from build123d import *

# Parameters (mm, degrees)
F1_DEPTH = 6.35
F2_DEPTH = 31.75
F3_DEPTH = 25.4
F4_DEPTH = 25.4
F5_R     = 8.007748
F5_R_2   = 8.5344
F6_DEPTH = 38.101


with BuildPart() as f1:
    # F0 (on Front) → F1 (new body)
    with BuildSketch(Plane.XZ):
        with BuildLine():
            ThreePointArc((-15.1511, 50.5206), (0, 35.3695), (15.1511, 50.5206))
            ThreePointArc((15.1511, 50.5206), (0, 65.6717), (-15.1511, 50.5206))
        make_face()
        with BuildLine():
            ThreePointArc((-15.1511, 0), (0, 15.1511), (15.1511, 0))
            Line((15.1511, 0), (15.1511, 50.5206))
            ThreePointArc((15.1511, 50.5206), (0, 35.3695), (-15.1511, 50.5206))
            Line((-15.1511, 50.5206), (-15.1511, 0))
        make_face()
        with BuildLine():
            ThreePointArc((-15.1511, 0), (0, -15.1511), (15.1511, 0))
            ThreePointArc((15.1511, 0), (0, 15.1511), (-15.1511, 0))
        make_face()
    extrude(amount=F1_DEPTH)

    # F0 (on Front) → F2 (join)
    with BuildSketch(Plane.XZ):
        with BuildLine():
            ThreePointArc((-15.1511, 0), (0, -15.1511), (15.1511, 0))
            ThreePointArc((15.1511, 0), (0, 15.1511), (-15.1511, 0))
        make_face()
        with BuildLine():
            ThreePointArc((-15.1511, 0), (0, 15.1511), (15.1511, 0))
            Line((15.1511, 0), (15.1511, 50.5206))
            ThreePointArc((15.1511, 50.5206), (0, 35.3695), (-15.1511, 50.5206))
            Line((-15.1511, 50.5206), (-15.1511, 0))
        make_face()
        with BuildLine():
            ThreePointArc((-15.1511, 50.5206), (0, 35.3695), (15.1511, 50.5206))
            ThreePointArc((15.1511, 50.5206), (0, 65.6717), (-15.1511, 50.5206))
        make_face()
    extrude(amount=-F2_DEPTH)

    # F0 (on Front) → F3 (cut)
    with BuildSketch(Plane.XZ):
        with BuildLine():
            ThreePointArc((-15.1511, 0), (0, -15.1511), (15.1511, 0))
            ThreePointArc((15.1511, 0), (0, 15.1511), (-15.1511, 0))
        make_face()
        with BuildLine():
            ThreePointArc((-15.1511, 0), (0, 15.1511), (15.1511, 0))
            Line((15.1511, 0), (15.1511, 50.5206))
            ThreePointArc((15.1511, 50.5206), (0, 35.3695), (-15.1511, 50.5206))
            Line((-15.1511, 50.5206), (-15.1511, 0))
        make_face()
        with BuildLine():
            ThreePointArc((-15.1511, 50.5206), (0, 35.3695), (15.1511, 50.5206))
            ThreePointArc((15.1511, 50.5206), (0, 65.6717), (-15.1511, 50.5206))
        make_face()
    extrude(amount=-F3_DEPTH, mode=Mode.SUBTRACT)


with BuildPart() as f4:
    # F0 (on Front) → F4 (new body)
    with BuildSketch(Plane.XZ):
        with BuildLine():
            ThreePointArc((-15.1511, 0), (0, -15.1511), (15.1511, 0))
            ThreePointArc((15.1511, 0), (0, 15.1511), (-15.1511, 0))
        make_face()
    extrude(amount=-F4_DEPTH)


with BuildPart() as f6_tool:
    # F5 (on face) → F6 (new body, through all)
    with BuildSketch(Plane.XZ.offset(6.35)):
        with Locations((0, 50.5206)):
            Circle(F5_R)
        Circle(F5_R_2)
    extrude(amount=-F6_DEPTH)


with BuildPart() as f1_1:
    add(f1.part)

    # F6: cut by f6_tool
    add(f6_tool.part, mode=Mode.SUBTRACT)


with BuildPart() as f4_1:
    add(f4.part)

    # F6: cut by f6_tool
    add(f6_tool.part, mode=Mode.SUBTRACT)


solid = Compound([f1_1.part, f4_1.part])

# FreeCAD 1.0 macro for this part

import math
import FreeCAD as App
import Part
import Sketcher

V = App.Vector
Q = App.Units.Quantity

doc = App.newDocument("Part")
body = doc.addObject("PartDesign::Body", "Body")
body.AllowCompound = True

# Sketch on XZ plane
sketch1 = body.newObject("Sketcher::SketchObject", "Sketch")
sketch1.AttachmentSupport = (doc.getObject("XZ_Plane"), [""])
sketch1.MapMode = "FlatFace"
sketch1.addGeometry([
    Part.ArcOfCircle(Part.Circle(V(0, 51, 0), V(0, 0, 1), 15), math.radians(0), math.radians(180)),
    Part.LineSegment(V(-15, 51, 0), V(-15, 0, 0)),
    Part.ArcOfCircle(Part.Circle(V(0, 0, 0), V(0, 0, 1), 15), math.radians(180), math.radians(360)),
    Part.LineSegment(V(15, 0, 0), V(15, 51, 0)),
], False)
sketch1.addConstraint([
    Sketcher.Constraint("Tangent", 0, 2, 1, 1),
    Sketcher.Constraint("Tangent", 1, 2, 2, 1),
    Sketcher.Constraint("Tangent", 2, 2, 3, 1),
    Sketcher.Constraint("Tangent", 3, 2, 0, 1),
    Sketcher.Constraint("Vertical", 1),
    Sketcher.Constraint("Vertical", 3),
    Sketcher.Constraint("Coincident", 2, 3, -1, 1),
    Sketcher.Constraint("Radius", 0, Q("0.5965 in")),
    Sketcher.Constraint("DistanceY", 1, 2, 1, 1, Q("1.989 in")),
])
pad1 = body.newObject("PartDesign::Pad", "Pad")
pad1.Profile = sketch1
pad1.Length = Q("0.25 in")

# Sketch on XZ plane
sketch2 = body.newObject("Sketcher::SketchObject", "Sketch001")
sketch2.AttachmentSupport = (doc.getObject("XZ_Plane"), [""])
sketch2.MapMode = "FlatFace"
sketch2.addGeometry([
    Part.ArcOfCircle(Part.Circle(V(0, 0, 0), V(0, 0, 1), 15), math.radians(180), math.radians(360)),
    Part.LineSegment(V(15, 0, 0), V(15, 51, 0)),
    Part.ArcOfCircle(Part.Circle(V(0, 51, 0), V(0, 0, 1), 15), math.radians(0), math.radians(180)),
    Part.LineSegment(V(-15, 51, 0), V(-15, 0, 0)),
], False)
sketch2.addConstraint([
    Sketcher.Constraint("Tangent", 0, 2, 1, 1),
    Sketcher.Constraint("Tangent", 1, 2, 2, 1),
    Sketcher.Constraint("Tangent", 2, 2, 3, 1),
    Sketcher.Constraint("Tangent", 3, 2, 0, 1),
    Sketcher.Constraint("Vertical", 1),
    Sketcher.Constraint("Vertical", 3),
    Sketcher.Constraint("Coincident", 0, 3, -1, 1),
    Sketcher.Constraint("Radius", 0, Q("0.5965 in")),
    Sketcher.Constraint("DistanceY", 1, 1, 1, 2, Q("1.989 in")),
])
pad2 = body.newObject("PartDesign::Pad", "Pad001")
pad2.Profile = sketch2
pad2.Length = Q("1.25 in")
pad2.Reversed = True

# Sketch on XZ plane
sketch3 = body.newObject("Sketcher::SketchObject", "Sketch002")
sketch3.AttachmentSupport = (doc.getObject("XZ_Plane"), [""])
sketch3.MapMode = "FlatFace"
sketch3.addGeometry([
    Part.ArcOfCircle(Part.Circle(V(0, 0, 0), V(0, 0, 1), 15), math.radians(180), math.radians(360)),
    Part.LineSegment(V(15, 0, 0), V(15, 51, 0)),
    Part.ArcOfCircle(Part.Circle(V(0, 51, 0), V(0, 0, 1), 15), math.radians(0), math.radians(180)),
    Part.LineSegment(V(-15, 51, 0), V(-15, 0, 0)),
], False)
sketch3.addConstraint([
    Sketcher.Constraint("Tangent", 0, 2, 1, 1),
    Sketcher.Constraint("Tangent", 1, 2, 2, 1),
    Sketcher.Constraint("Tangent", 2, 2, 3, 1),
    Sketcher.Constraint("Tangent", 3, 2, 0, 1),
    Sketcher.Constraint("Vertical", 1),
    Sketcher.Constraint("Vertical", 3),
    Sketcher.Constraint("Coincident", 0, 3, -1, 1),
    Sketcher.Constraint("Radius", 0, Q("0.5965 in")),
    Sketcher.Constraint("DistanceY", 1, 1, 1, 2, Q("1.989 in")),
])
pocket1 = body.newObject("PartDesign::Pocket", "Pocket")
pocket1.Profile = sketch3
pocket1.Length = Q("1 in")
body2 = doc.addObject("PartDesign::Body", "Body001")

# Sketch on XZ plane
sketch4 = body2.newObject("Sketcher::SketchObject", "Sketch003")
sketch4.AttachmentSupport = (doc.getObject("XZ_Plane001"), [""])
sketch4.MapMode = "FlatFace"
sketch4.addGeometry(Part.Circle(V(0, 0, 0), V(0, 0, 1), 15), False)
sketch4.addConstraint([
    Sketcher.Constraint("Coincident", 0, 3, -1, 1),
    Sketcher.Constraint("Diameter", 0, Q("1.193 in")),
])
pad3 = body2.newObject("PartDesign::Pad", "Pad002")
pad3.Profile = sketch4
pad3.Length = Q("1 in")
pad3.Reversed = True
body3 = doc.addObject("PartDesign::Body", "Body002")
body3.AllowCompound = True

# Sketch on XZ plane
sketch5 = body3.newObject("Sketcher::SketchObject", "Sketch004")
sketch5.AttachmentSupport = (doc.getObject("XZ_Plane002"), [""])
sketch5.MapMode = "FlatFace"
sketch5.AttachmentOffset = App.Placement(V(0, 0, 0.25 * 25.4), App.Rotation())
sketch5.addGeometry([
    Part.Circle(V(0, 51, 0), V(0, 0, 1), 8),
    Part.Circle(V(0, 0, 0), V(0, 0, 1), 9),
], False)
sketch5.addConstraint([
    Sketcher.Constraint("Coincident", 1, 3, -1, 1),
    Sketcher.Constraint("PointOnObject", 0, 3, -2),
    Sketcher.Constraint("Diameter", 1, Q("0.672 in")),
    Sketcher.Constraint("DistanceY", -1, 1, 0, 3, Q("1.989 in")),
    Sketcher.Constraint("Diameter", 0, Q("16.015496 mm")),
])
pad4 = body3.newObject("PartDesign::Pad", "Pad003")
pad4.Profile = sketch5
pad4.Length = 38.101
pad4.Reversed = True
body.AllowCompound = True
doc.recompute()

body4 = doc.addObject("PartDesign::Body", "Body003")
body4.BaseFeature = body3
boolean = body.newObject("PartDesign::Boolean", "Boolean")
boolean.Type = "Cut"
boolean.addObjects([body4])
doc.recompute()

boolean2 = body2.newObject("PartDesign::Boolean", "Boolean001")
boolean2.Type = "Cut"
boolean2.addObjects([body3])

doc.recompute()
